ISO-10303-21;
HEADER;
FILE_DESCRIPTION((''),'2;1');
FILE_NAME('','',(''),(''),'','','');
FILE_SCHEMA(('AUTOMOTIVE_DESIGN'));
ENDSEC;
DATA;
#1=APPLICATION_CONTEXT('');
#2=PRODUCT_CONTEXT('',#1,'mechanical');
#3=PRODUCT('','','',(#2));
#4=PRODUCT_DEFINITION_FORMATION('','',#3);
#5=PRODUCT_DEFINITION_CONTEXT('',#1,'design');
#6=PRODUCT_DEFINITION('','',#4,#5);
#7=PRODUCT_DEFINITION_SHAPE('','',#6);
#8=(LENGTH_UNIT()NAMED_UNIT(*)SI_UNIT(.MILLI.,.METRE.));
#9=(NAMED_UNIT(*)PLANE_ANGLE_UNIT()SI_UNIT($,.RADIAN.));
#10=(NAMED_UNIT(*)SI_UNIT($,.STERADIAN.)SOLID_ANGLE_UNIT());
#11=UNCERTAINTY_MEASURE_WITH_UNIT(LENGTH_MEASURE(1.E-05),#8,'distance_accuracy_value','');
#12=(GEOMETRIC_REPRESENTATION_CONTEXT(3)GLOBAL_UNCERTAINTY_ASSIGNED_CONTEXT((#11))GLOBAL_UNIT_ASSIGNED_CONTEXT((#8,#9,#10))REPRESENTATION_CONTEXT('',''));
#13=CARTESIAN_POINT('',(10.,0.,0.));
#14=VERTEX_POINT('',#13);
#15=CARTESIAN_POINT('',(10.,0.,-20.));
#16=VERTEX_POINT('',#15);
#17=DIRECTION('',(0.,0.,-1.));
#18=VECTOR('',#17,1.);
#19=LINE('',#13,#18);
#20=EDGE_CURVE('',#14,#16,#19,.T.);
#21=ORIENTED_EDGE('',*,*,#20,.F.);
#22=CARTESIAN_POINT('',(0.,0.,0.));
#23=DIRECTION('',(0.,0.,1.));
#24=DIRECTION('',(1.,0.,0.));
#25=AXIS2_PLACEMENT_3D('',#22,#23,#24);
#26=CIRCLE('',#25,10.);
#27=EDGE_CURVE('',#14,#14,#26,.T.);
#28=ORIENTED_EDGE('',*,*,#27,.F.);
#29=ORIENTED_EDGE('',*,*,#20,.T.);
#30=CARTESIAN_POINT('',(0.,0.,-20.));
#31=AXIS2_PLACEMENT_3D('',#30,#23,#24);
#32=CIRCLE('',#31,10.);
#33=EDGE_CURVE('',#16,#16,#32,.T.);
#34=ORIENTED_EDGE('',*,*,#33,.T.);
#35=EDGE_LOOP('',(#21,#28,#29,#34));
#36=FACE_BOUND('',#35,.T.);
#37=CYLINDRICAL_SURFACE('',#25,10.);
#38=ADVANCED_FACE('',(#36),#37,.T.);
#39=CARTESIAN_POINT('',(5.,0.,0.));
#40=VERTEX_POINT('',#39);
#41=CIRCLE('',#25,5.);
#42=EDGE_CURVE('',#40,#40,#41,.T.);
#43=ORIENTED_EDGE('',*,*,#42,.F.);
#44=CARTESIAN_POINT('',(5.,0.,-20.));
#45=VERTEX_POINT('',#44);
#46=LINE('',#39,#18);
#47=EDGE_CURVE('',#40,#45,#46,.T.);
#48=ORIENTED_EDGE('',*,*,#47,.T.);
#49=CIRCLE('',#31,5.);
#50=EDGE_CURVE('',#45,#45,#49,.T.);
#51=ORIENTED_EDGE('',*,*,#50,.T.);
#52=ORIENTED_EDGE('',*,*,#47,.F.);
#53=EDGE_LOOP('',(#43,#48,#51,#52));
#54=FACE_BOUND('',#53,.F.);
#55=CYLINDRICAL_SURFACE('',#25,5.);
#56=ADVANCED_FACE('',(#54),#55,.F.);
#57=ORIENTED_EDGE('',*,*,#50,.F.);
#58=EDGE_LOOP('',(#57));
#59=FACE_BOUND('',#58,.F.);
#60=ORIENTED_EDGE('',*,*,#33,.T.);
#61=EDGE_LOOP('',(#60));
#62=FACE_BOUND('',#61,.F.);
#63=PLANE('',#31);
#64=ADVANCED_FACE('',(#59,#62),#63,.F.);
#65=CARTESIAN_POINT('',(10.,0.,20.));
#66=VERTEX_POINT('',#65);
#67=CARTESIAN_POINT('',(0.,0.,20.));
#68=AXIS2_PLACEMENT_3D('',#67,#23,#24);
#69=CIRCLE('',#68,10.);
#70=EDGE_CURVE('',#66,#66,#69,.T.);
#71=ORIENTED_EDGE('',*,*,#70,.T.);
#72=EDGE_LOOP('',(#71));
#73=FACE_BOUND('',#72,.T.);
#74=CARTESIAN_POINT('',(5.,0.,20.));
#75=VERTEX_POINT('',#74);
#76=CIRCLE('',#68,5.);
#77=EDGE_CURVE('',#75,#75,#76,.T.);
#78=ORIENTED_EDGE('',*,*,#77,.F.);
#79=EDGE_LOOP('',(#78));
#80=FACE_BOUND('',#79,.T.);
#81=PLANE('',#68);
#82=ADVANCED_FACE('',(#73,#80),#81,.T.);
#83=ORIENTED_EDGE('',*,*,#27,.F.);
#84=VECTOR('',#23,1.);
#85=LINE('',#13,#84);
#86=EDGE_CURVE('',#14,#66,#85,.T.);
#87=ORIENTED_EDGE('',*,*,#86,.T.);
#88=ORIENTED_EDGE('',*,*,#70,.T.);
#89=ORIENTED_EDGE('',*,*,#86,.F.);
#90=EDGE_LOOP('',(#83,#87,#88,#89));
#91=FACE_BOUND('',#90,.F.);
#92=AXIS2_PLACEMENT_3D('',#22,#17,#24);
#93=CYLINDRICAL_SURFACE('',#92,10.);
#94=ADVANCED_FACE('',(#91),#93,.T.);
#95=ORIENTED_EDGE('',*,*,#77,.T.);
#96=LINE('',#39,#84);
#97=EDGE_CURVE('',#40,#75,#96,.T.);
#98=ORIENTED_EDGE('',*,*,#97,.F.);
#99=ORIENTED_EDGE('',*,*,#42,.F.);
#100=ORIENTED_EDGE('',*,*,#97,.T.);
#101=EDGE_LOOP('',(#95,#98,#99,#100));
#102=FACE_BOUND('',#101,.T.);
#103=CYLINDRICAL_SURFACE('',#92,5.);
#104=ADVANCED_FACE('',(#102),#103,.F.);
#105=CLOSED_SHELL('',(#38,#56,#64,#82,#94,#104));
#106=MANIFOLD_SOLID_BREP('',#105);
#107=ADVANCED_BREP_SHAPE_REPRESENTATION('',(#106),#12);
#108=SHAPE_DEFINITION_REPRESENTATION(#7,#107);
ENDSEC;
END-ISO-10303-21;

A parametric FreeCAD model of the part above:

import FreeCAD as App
import Part
import Sketcher
from FreeCAD import Vector
Q = App.Units.Quantity

doc = App.newDocument("Part")
params = doc.addObject("Spreadsheet::Sheet", "Params")
for row, (alias, value) in enumerate([
    ("sketch1_diameter", "20 mm"),
    ("sketch1_diameter2", "10 mm"),
    ("pad1_length", "40 mm"),
], start=1):
    params.set(f"A{row}", alias)
    params.set(f"B{row}", "=" + value)
    params.setAlias(f"B{row}", alias)

body = doc.addObject("PartDesign::Body", "Body")

sketch1 = body.newObject("Sketcher::SketchObject", "Sketch")
sketch1.AttachmentSupport = (doc.getObject("XY_Plane"), [""])
sketch1.MapMode = "FlatFace"
sketch1.addGeometry([
    Part.Circle(Vector(0, 0, 0), Vector(0, 0, 1), 10),
    Part.Circle(Vector(0, 0, 0), Vector(0, 0, 1), 5),
], False)
sketch1.addConstraint([
    Sketcher.Constraint("Coincident", 0, 3, -1, 1),
    Sketcher.Constraint("Coincident", 1, 3, -1, 1),
    Sketcher.Constraint("Diameter", 0, Q("20 mm")),
    Sketcher.Constraint("Diameter", 1, Q("10 mm")),
])
sketch1.setExpression("Constraints[2]", "Params.sketch1_diameter")
sketch1.setExpression("Constraints[3]", "Params.sketch1_diameter2")
pad1 = body.newObject("PartDesign::Pad", "Pad")
pad1.Profile = sketch1
pad1.setExpression("Length", "Params.pad1_length")
pad1.Midplane = True

doc.recompute()
